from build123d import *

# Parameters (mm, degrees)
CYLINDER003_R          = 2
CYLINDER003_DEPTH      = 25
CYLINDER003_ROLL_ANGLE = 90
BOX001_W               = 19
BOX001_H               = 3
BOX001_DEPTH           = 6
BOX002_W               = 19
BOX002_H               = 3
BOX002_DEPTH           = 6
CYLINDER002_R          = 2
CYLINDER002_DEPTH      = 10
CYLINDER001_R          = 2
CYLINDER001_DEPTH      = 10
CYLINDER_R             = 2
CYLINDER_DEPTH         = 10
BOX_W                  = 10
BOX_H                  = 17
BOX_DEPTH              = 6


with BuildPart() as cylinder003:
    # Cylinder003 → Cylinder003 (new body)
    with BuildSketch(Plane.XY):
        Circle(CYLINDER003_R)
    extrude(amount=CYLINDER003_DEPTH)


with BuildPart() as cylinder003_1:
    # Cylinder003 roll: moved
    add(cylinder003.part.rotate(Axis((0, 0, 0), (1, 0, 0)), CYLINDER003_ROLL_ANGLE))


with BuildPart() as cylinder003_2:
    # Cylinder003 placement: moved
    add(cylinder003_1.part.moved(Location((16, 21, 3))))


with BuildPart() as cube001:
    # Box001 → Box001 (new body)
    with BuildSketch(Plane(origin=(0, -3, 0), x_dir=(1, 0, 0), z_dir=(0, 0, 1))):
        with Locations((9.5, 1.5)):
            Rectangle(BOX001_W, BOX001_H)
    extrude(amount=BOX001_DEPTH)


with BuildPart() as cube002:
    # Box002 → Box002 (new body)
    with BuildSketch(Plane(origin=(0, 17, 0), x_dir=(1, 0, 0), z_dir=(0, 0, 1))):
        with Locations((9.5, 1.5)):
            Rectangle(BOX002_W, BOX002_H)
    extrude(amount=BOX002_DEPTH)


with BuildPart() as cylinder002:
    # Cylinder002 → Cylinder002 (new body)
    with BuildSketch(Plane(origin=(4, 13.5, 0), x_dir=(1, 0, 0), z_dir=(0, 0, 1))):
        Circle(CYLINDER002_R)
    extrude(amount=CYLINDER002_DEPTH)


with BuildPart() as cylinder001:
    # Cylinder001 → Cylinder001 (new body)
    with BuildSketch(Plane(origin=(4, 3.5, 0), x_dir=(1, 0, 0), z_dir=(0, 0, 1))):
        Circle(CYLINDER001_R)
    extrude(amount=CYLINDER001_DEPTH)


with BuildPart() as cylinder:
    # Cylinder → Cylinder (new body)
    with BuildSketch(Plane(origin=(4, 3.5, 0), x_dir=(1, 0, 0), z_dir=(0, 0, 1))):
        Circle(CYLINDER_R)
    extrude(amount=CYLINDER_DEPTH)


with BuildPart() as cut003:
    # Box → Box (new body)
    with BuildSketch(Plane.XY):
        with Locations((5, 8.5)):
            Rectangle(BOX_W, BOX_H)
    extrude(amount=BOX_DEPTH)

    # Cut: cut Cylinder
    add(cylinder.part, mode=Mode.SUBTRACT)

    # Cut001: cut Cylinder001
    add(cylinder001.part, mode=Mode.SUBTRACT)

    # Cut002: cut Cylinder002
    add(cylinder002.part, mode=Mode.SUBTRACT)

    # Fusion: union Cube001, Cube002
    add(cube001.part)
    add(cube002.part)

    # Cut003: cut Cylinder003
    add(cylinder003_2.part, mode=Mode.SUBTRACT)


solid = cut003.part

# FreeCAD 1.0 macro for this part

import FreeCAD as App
import Part
import Sketcher
Q = App.Units.Quantity


def add_polygon(sketch, points):
    """Adds a closed chain of lines whose ends are joined by coincident constraints."""
    first, n = sketch.GeometryCount, len(points)
    for a, b in zip(points, points[1:] + points[:1]):
        sketch.addGeometry(Part.LineSegment(App.Vector(*a, 0), App.Vector(*b, 0)), False)
    for i in range(n):
        sketch.addConstraint(Sketcher.Constraint("Coincident", first + i, 2, first + (i + 1) % n, 1))

doc = App.newDocument("Part")
body = doc.addObject("PartDesign::Body", "Body")

# Sketch on XY plane
sketch1 = body.newObject("Sketcher::SketchObject", "Sketch")
sketch1.AttachmentSupport = (doc.getObject("XY_Plane"), [""])
sketch1.MapMode = "FlatFace"
sketch1.addGeometry(Part.Circle(App.Vector(0, 0, 0), App.Vector(0, 0, 1), 2), False)
sketch1.addConstraint(Sketcher.Constraint("Coincident", 0, 3, -1, 1))
sketch1.addConstraint(Sketcher.Constraint("Diameter", 0, Q("4 mm")))
pad1 = body.newObject("PartDesign::Pad", "Pad")
pad1.Profile = sketch1
pad1.Length = 25
body2 = doc.addObject("PartDesign::Body", "Body001")
doc.recompute()

body.Placement = App.Placement(App.Vector(0, 0, 0), App.Rotation(App.Vector(1, 0, 0), 90))
boolean = body2.newObject("PartDesign::Boolean", "Boolean")
boolean.Type = "Fuse"
boolean.addObjects([body])
body3 = doc.addObject("PartDesign::Body", "Body002")
doc.recompute()

body2.Placement = App.Placement(App.Vector(16, 21, 3), App.Rotation(App.Vector(0, 0, 1), 0))
boolean2 = body3.newObject("PartDesign::Boolean", "Boolean001")
boolean2.Type = "Fuse"
boolean2.addObjects([body2])
body4 = doc.addObject("PartDesign::Body", "Body003")

# Sketch on XY plane
sketch2 = body4.newObject("Sketcher::SketchObject", "Sketch001")
sketch2.AttachmentSupport = (doc.getObject("XY_Plane003"), [""])
sketch2.MapMode = "FlatFace"
add_polygon(sketch2, [(0, 0), (0, -3), (19, -3), (19, 0)])  # lines 0-3
sketch2.addConstraint(Sketcher.Constraint("Vertical", 0))
sketch2.addConstraint(Sketcher.Constraint("Horizontal", 1))
sketch2.addConstraint(Sketcher.Constraint("Vertical", 2))
sketch2.addConstraint(Sketcher.Constraint("Horizontal", 3))
sketch2.addConstraint(Sketcher.Constraint("Coincident", 3, 2, -1, 1))
sketch2.addConstraint(Sketcher.Constraint("DistanceX", 1, 1, 1, 2, Q("19 mm")))
sketch2.addConstraint(Sketcher.Constraint("DistanceY", 0, 2, 0, 1, Q("3 mm")))
pad2 = body4.newObject("PartDesign::Pad", "Pad001")
pad2.Profile = sketch2
pad2.Length = 6
body5 = doc.addObject("PartDesign::Body", "Body004")

# Sketch on XY plane
sketch3 = body5.newObject("Sketcher::SketchObject", "Sketch002")
sketch3.AttachmentSupport = (doc.getObject("XY_Plane004"), [""])
sketch3.MapMode = "FlatFace"
add_polygon(sketch3, [(0, 20), (0, 17), (19, 17), (19, 20)])  # lines 0-3
sketch3.addConstraint(Sketcher.Constraint("Vertical", 0))
sketch3.addConstraint(Sketcher.Constraint("Horizontal", 1))
sketch3.addConstraint(Sketcher.Constraint("Vertical", 2))
sketch3.addConstraint(Sketcher.Constraint("Horizontal", 3))
sketch3.addConstraint(Sketcher.Constraint("PointOnObject", 0, 2, -2))
sketch3.addConstraint(Sketcher.Constraint("DistanceX", 1, 1, 1, 2, Q("19 mm")))
sketch3.addConstraint(Sketcher.Constraint("DistanceY", 0, 2, 0, 1, Q("3 mm")))
sketch3.addConstraint(Sketcher.Constraint("DistanceY", -1, 1, 0, 2, Q("17 mm")))
pad3 = body5.newObject("PartDesign::Pad", "Pad002")
pad3.Profile = sketch3
pad3.Length = 6
body6 = doc.addObject("PartDesign::Body", "Body005")

# Sketch on XY plane
sketch4 = body6.newObject("Sketcher::SketchObject", "Sketch003")
sketch4.AttachmentSupport = (doc.getObject("XY_Plane005"), [""])
sketch4.MapMode = "FlatFace"
sketch4.addGeometry(Part.Circle(App.Vector(4, 13.5, 0), App.Vector(0, 0, 1), 2), False)
sketch4.addConstraint(Sketcher.Constraint("Diameter", 0, Q("4 mm")))
sketch4.addConstraint(Sketcher.Constraint("DistanceX", -1, 1, 0, 3, Q("4 mm")))
sketch4.addConstraint(Sketcher.Constraint("DistanceY", -1, 1, 0, 3, Q("13.5 mm")))
pad4 = body6.newObject("PartDesign::Pad", "Pad003")
pad4.Profile = sketch4
pad4.Length = 10
body7 = doc.addObject("PartDesign::Body", "Body006")

# Sketch on XY plane
sketch5 = body7.newObject("Sketcher::SketchObject", "Sketch004")
sketch5.AttachmentSupport = (doc.getObject("XY_Plane006"), [""])
sketch5.MapMode = "FlatFace"
sketch5.addGeometry(Part.Circle(App.Vector(4, 3.5, 0), App.Vector(0, 0, 1), 2), False)
sketch5.addConstraint(Sketcher.Constraint("Diameter", 0, Q("4 mm")))
sketch5.addConstraint(Sketcher.Constraint("DistanceX", -1, 1, 0, 3, Q("4 mm")))
sketch5.addConstraint(Sketcher.Constraint("DistanceY", -1, 1, 0, 3, Q("3.5 mm")))
pad5 = body7.newObject("PartDesign::Pad", "Pad004")
pad5.Profile = sketch5
pad5.Length = 10
body8 = doc.addObject("PartDesign::Body", "Body007")

# Sketch on XY plane
sketch6 = body8.newObject("Sketcher::SketchObject", "Sketch005")
sketch6.AttachmentSupport = (doc.getObject("XY_Plane007"), [""])
sketch6.MapMode = "FlatFace"
sketch6.addGeometry(Part.Circle(App.Vector(4, 3.5, 0), App.Vector(0, 0, 1), 2), False)
sketch6.addConstraint(Sketcher.Constraint("Diameter", 0, Q("4 mm")))
sketch6.addConstraint(Sketcher.Constraint("DistanceX", -1, 1, 0, 3, Q("4 mm")))
sketch6.addConstraint(Sketcher.Constraint("DistanceY", -1, 1, 0, 3, Q("3.5 mm")))
pad6 = body8.newObject("PartDesign::Pad", "Pad005")
pad6.Profile = sketch6
pad6.Length = 10
body9 = doc.addObject("PartDesign::Body", "Body008")

# Sketch on XY plane
sketch7 = body9.newObject("Sketcher::SketchObject", "Sketch006")
sketch7.AttachmentSupport = (doc.getObject("XY_Plane008"), [""])
sketch7.MapMode = "FlatFace"
add_polygon(sketch7, [(0, 17), (0, 0), (10, 0), (10, 17)])  # lines 0-3
sketch7.addConstraint(Sketcher.Constraint("Vertical", 0))
sketch7.addConstraint(Sketcher.Constraint("Horizontal", 1))
sketch7.addConstraint(Sketcher.Constraint("Vertical", 2))
sketch7.addConstraint(Sketcher.Constraint("Horizontal", 3))
sketch7.addConstraint(Sketcher.Constraint("Coincident", 0, 2, -1, 1))
sketch7.addConstraint(Sketcher.Constraint("DistanceX", 1, 1, 1, 2, Q("10 mm")))
sketch7.addConstraint(Sketcher.Constraint("DistanceY", 0, 2, 0, 1, Q("17 mm")))
pad7 = body9.newObject("PartDesign::Pad", "Pad006")
pad7.Profile = sketch7
pad7.Length = 6
doc.recompute()

boolean3 = body9.newObject("PartDesign::Boolean", "Boolean002")
boolean3.Type = "Cut"
boolean3.addObjects([body8])
doc.recompute()

boolean4 = body9.newObject("PartDesign::Boolean", "Boolean003")
boolean4.Type = "Cut"
boolean4.addObjects([body7])
doc.recompute()

boolean5 = body9.newObject("PartDesign::Boolean", "Boolean004")
boolean5.Type = "Cut"
boolean5.addObjects([body6])
doc.recompute()

boolean6 = body9.newObject("PartDesign::Boolean", "Boolean005")
boolean6.Type = "Fuse"
boolean6.addObjects([body4])
doc.recompute()

boolean7 = body9.newObject("PartDesign::Boolean", "Boolean006")
boolean7.Type = "Fuse"
boolean7.addObjects([body5])
doc.recompute()

boolean8 = body9.newObject("PartDesign::Boolean", "Boolean007")
boolean8.Type = "Cut"
boolean8.addObjects([body3])

doc.recompute()
